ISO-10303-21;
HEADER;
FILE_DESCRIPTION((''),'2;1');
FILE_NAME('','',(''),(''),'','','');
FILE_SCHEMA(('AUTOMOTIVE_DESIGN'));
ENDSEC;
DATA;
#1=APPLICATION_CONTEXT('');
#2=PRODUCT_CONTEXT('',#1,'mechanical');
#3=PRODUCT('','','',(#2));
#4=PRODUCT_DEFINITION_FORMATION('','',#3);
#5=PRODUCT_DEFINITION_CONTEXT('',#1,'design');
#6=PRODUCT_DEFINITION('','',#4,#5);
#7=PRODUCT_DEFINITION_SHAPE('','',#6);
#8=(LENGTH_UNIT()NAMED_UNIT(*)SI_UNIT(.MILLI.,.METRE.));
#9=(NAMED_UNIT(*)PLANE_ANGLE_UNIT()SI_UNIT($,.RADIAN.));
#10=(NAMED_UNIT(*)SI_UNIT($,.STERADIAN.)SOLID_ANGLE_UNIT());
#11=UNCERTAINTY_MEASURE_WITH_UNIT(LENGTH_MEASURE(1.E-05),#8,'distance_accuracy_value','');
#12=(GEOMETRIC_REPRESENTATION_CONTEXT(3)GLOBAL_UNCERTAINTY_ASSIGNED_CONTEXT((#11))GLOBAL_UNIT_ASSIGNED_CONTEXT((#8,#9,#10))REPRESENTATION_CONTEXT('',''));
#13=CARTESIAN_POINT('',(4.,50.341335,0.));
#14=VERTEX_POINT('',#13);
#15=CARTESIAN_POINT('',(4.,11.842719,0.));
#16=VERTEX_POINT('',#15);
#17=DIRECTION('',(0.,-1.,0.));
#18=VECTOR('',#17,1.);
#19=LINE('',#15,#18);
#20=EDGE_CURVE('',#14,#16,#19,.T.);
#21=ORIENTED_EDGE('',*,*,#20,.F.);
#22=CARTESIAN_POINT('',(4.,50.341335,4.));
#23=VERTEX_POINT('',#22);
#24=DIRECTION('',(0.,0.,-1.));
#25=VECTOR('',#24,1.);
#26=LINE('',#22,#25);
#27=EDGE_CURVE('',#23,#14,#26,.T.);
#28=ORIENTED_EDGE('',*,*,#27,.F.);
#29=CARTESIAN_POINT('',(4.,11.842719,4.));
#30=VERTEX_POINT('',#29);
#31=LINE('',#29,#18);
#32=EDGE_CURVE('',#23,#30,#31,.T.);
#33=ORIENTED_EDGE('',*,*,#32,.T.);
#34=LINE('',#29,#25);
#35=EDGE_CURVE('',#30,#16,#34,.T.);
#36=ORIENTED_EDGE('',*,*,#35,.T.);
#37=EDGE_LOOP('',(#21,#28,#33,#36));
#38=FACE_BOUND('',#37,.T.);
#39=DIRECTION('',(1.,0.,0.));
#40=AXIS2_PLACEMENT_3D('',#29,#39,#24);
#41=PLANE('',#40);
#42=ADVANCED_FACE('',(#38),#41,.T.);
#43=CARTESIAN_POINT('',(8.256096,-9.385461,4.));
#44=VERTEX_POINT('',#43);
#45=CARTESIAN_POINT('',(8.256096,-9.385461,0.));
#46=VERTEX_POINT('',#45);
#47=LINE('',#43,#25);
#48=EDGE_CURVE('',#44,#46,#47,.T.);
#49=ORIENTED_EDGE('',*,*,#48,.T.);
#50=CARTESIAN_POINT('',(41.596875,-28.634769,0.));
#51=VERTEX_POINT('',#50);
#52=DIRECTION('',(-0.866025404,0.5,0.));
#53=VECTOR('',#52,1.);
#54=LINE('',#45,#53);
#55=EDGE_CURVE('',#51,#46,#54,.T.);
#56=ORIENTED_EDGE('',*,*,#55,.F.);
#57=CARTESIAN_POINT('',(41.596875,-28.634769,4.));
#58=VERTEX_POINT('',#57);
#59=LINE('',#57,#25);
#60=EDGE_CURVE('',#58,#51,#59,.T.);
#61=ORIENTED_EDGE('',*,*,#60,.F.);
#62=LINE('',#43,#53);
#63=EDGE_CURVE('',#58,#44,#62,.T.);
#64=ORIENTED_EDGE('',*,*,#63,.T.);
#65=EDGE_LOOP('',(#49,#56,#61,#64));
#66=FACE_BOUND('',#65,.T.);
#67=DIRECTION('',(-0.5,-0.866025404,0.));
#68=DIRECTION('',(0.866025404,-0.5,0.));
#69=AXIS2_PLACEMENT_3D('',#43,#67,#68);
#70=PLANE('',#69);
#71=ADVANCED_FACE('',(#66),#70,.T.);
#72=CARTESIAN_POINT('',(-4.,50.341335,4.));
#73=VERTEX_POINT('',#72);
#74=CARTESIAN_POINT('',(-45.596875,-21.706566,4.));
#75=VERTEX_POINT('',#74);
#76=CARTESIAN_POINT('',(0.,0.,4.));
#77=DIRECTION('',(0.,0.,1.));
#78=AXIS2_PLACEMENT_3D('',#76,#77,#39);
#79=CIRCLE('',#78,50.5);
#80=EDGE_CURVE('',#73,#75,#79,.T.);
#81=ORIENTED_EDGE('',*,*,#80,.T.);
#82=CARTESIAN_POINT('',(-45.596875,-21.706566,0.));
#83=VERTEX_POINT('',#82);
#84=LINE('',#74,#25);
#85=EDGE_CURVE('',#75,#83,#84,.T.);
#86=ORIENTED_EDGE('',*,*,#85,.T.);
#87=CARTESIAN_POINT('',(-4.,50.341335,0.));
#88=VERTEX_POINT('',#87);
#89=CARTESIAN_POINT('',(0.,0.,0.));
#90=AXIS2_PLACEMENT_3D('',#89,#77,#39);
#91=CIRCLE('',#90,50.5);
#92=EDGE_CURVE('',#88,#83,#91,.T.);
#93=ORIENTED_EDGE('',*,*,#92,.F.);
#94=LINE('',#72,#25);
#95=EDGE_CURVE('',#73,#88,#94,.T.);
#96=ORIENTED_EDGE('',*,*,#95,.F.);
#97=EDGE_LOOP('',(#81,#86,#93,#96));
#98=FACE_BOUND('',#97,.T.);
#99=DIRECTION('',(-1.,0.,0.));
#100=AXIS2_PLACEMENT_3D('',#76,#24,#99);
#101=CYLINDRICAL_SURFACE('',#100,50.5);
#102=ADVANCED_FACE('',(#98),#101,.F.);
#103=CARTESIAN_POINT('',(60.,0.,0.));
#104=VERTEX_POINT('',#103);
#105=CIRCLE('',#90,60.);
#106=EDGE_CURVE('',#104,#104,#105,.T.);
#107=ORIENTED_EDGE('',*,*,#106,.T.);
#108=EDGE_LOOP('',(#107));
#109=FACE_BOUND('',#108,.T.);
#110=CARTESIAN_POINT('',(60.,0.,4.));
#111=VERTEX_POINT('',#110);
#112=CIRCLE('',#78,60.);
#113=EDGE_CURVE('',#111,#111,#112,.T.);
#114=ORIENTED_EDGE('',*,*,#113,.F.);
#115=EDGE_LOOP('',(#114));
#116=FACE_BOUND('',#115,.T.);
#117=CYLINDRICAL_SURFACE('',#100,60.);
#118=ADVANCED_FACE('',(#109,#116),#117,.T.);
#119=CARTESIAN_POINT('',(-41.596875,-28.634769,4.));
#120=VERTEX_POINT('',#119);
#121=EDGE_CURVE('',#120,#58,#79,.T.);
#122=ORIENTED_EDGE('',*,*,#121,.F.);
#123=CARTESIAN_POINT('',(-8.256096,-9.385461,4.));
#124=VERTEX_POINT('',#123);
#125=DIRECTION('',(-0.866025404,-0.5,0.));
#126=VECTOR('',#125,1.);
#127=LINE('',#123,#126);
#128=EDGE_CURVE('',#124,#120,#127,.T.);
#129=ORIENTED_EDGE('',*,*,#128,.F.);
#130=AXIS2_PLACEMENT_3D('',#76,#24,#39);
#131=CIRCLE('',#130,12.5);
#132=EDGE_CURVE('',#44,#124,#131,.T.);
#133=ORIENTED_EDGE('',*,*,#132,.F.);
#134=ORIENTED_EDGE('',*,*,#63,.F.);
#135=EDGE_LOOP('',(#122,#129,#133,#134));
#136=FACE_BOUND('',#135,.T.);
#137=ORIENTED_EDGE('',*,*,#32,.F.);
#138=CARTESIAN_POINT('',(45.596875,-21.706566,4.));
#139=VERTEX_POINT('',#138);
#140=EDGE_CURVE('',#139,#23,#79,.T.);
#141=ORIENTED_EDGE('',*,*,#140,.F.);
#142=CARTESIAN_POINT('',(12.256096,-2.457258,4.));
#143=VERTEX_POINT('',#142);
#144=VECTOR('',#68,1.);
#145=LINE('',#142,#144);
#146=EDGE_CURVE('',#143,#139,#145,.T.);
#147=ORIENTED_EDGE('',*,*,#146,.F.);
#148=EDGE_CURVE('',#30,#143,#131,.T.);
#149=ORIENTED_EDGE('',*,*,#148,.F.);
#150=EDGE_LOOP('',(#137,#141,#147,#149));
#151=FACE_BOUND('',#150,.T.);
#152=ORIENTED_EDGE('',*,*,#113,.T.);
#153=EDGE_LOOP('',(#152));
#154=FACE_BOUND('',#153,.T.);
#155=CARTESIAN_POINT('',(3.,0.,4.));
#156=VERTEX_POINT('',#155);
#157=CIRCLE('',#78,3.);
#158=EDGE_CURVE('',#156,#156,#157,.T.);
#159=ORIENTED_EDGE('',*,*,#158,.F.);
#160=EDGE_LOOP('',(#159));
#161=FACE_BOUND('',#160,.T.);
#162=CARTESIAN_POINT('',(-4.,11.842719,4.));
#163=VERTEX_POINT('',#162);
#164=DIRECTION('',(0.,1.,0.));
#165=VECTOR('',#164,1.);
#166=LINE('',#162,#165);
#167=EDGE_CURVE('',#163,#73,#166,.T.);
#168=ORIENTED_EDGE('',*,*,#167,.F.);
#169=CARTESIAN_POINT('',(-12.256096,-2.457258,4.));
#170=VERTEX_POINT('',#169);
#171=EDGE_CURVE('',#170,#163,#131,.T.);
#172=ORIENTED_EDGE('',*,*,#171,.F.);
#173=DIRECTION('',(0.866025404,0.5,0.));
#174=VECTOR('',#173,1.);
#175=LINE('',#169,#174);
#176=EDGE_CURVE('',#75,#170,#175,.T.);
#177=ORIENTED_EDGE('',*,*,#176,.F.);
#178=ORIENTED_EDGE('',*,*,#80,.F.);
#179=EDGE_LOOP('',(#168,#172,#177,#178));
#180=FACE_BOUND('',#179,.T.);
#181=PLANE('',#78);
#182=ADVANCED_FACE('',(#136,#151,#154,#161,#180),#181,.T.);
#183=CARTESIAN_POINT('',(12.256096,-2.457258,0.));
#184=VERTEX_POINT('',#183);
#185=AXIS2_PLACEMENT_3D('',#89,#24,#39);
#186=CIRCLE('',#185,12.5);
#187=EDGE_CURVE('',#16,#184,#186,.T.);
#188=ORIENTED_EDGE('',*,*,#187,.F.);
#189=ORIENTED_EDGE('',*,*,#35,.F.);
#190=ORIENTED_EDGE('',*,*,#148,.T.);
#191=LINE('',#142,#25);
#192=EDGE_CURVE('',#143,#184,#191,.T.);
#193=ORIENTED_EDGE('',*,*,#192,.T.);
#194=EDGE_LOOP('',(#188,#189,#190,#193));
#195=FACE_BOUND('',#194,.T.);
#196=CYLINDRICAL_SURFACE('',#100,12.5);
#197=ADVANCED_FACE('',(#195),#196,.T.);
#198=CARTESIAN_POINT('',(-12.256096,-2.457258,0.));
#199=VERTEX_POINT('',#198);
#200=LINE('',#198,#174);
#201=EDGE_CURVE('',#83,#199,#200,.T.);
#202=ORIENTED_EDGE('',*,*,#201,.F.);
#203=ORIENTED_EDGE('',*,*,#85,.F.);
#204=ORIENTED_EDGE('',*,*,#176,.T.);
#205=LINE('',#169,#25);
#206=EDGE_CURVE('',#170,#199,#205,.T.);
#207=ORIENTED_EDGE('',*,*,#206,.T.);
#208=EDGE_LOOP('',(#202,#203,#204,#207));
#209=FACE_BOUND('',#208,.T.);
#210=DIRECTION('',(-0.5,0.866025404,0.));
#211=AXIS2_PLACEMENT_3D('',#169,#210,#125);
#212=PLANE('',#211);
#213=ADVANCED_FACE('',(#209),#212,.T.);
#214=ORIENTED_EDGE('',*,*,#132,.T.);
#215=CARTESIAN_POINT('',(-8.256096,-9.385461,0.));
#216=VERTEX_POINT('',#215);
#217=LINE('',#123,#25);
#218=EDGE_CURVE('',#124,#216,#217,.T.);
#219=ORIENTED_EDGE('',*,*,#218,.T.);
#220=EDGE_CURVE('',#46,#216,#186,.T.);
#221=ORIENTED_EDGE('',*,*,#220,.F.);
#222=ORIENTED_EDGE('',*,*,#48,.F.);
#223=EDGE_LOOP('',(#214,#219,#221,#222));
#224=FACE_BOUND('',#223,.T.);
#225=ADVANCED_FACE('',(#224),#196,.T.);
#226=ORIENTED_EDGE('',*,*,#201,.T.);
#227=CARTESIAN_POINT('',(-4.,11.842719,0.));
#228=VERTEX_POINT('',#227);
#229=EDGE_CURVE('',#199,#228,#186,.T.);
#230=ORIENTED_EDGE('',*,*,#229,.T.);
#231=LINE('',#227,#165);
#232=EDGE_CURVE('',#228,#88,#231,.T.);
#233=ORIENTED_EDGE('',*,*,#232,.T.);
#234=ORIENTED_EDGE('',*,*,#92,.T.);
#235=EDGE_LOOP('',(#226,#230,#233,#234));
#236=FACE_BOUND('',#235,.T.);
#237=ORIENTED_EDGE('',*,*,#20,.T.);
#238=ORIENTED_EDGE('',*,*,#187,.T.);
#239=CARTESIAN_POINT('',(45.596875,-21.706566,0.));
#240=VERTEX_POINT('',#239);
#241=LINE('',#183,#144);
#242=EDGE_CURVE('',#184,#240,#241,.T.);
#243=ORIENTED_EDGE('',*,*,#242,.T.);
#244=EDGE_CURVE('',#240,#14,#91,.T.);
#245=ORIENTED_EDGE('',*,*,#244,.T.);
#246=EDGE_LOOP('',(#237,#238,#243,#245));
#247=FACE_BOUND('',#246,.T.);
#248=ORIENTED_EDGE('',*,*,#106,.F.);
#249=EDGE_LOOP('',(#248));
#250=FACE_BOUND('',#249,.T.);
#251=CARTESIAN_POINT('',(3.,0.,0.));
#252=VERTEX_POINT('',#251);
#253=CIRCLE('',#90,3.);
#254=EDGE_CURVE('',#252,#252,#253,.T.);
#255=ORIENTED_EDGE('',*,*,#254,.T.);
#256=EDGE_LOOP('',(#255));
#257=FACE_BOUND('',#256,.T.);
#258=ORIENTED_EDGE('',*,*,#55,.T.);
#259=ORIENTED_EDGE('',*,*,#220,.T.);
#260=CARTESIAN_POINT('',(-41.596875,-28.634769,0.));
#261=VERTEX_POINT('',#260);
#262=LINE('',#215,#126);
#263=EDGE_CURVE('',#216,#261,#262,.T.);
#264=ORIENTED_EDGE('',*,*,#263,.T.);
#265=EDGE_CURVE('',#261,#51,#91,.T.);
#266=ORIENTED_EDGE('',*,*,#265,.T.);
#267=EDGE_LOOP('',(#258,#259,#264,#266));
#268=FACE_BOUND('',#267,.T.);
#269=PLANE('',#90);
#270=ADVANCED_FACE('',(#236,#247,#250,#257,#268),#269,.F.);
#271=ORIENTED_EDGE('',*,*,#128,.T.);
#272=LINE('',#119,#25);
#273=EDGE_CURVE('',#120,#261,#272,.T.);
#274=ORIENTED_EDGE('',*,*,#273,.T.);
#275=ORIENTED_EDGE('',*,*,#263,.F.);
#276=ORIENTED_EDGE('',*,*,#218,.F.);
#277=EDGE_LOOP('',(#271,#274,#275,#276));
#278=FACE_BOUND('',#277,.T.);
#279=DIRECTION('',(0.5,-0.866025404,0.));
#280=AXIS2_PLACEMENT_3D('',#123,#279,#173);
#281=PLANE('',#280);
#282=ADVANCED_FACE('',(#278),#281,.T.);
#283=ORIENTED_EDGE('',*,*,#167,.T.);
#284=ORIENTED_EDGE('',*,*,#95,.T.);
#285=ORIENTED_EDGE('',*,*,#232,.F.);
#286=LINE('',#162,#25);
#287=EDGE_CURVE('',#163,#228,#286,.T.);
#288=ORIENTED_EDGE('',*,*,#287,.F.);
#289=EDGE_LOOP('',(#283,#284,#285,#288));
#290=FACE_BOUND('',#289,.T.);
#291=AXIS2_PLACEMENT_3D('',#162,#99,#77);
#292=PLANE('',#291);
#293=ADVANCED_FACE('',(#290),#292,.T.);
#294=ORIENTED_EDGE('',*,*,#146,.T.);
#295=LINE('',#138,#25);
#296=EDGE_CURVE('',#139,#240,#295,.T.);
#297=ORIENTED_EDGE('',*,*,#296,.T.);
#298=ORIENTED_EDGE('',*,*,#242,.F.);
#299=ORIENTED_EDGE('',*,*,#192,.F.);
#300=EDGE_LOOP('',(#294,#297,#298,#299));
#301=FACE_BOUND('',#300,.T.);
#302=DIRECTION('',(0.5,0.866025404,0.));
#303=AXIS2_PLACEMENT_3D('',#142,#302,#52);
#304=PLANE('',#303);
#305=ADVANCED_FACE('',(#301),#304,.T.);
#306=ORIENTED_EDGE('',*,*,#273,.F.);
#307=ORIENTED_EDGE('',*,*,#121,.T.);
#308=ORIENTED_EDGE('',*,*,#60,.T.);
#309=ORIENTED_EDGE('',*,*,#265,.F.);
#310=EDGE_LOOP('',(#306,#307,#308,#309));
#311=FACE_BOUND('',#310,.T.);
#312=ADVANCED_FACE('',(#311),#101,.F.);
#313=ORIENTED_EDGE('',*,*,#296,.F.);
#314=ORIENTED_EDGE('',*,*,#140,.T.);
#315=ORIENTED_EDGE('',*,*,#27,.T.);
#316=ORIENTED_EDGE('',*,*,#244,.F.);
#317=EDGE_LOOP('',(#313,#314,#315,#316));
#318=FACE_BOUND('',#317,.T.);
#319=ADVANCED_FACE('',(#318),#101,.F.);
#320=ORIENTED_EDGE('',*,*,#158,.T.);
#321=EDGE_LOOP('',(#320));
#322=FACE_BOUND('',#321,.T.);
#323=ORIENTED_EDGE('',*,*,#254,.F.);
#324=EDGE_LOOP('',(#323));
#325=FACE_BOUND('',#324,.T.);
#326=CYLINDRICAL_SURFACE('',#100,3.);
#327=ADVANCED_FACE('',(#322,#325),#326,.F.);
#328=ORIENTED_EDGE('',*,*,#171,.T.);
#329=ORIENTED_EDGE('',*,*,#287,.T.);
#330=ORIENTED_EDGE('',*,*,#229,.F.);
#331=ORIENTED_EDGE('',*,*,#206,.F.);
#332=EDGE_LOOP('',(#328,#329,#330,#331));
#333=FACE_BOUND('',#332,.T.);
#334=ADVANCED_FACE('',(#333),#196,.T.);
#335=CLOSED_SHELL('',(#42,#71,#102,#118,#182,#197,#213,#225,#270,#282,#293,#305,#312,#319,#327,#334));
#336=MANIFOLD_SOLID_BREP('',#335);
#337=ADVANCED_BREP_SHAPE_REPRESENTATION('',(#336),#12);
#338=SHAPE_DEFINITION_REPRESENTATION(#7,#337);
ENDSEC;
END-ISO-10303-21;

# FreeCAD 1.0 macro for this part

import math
import FreeCAD as App
import Part
import Sketcher

V = App.Vector
Q = App.Units.Quantity

doc = App.newDocument("Part")
body = doc.addObject("PartDesign::Body", "Body")

sketch1 = body.newObject("Sketcher::SketchObject", "Sketch")
sketch1.AttachmentSupport = (doc.getObject("XY_Plane"), [""])
sketch1.MapMode = "FlatFace"
sketch1.addGeometry(Part.Circle(V(0, 0, 0), V(0, 0, 1), 60), False)
sketch1.addGeometry(Part.ArcOfCircle(Part.Circle(V(0, 0, 0), V(0, 0, 1), 12.5), math.radians(-131.337075), math.radians(-48.662925)), False)
sketch1.addGeometry(Part.LineSegment(V(8.256096, -9.385461, 0), V(41.596875, -28.634769, 0)), False)
sketch1.addGeometry(Part.ArcOfCircle(Part.Circle(V(0, 0, 0), V(0, 0, 1), 50.5), math.radians(-145.456962), math.radians(-34.543038)), False)
sketch1.addGeometry(Part.LineSegment(V(-41.596875, -28.634769, 0), V(-8.256096, -9.385461, 0)), False)
sketch1.addGeometry(Part.LineSegment(V(-4, 50.341335, 0), V(-4, 11.842719, 0)), False)
sketch1.addGeometry(Part.ArcOfCircle(Part.Circle(V(0, 0, 0), V(0, 0, 1), 12.5), math.radians(108.662925), math.radians(191.337075)), False)
sketch1.addGeometry(Part.LineSegment(V(-12.256096, -2.457258, 0), V(-45.596875, -21.706566, 0)), False)
sketch1.addGeometry(Part.ArcOfCircle(Part.Circle(V(0, 0, 0), V(0, 0, 1), 50.5), math.radians(94.543038), math.radians(205.456962)), False)
sketch1.addGeometry(Part.Circle(V(0, 0, 0), V(0, 0, 1), 3), False)
sketch1.addGeometry(Part.ArcOfCircle(Part.Circle(V(0, 0, 0), V(0, 0, 1), 12.5), math.radians(-11.337075), math.radians(71.337075)), False)
sketch1.addGeometry(Part.LineSegment(V(4, 11.842719, 0), V(4, 50.341335, 0)), False)
sketch1.addGeometry(Part.ArcOfCircle(Part.Circle(V(0, 0, 0), V(0, 0, 1), 50.5), math.radians(-25.456962), math.radians(85.456962)), False)
sketch1.addGeometry(Part.LineSegment(V(45.596875, -21.706566, 0), V(12.256096, -2.457258, 0)), False)
sketch1.addConstraint(Sketcher.Constraint("Coincident", 1, 2, 2, 1))
sketch1.addConstraint(Sketcher.Constraint("Coincident", 2, 2, 3, 2))
sketch1.addConstraint(Sketcher.Constraint("Coincident", 3, 1, 4, 1))
sketch1.addConstraint(Sketcher.Constraint("Coincident", 4, 2, 1, 1))
sketch1.addConstraint(Sketcher.Constraint("Coincident", 5, 2, 6, 1))
sketch1.addConstraint(Sketcher.Constraint("Coincident", 6, 2, 7, 1))
sketch1.addConstraint(Sketcher.Constraint("Coincident", 7, 2, 8, 2))
sketch1.addConstraint(Sketcher.Constraint("Coincident", 8, 1, 5, 1))
sketch1.addConstraint(Sketcher.Constraint("Coincident", 10, 2, 11, 1))
sketch1.addConstraint(Sketcher.Constraint("Coincident", 11, 2, 12, 2))
sketch1.addConstraint(Sketcher.Constraint("Coincident", 12, 1, 13, 1))
sketch1.addConstraint(Sketcher.Constraint("Coincident", 13, 2, 10, 1))
sketch1.addConstraint(Sketcher.Constraint("Vertical", 5))
sketch1.addConstraint(Sketcher.Constraint("Vertical", 11))
sketch1.addConstraint(Sketcher.Constraint("Coincident", 0, 3, -1, 1))
sketch1.addConstraint(Sketcher.Constraint("Coincident", 1, 3, -1, 1))
sketch1.addConstraint(Sketcher.Constraint("Coincident", 3, 3, -1, 1))
sketch1.addConstraint(Sketcher.Constraint("Coincident", 6, 3, -1, 1))
sketch1.addConstraint(Sketcher.Constraint("Coincident", 8, 3, -1, 1))
sketch1.addConstraint(Sketcher.Constraint("Coincident", 9, 3, -1, 1))
sketch1.addConstraint(Sketcher.Constraint("Coincident", 10, 3, -1, 1))
sketch1.addConstraint(Sketcher.Constraint("Coincident", 12, 3, -1, 1))
sketch1.addConstraint(Sketcher.Constraint("Equal", 1, 6))
sketch1.addConstraint(Sketcher.Constraint("Equal", 3, 8))
sketch1.addConstraint(Sketcher.Constraint("Equal", 6, 10))
sketch1.addConstraint(Sketcher.Constraint("Equal", 8, 12))
sketch1.addConstraint(Sketcher.Constraint("Parallel", 4, 7))
sketch1.addConstraint(Sketcher.Constraint("Parallel", 2, 13))
sketch1.addConstraint(Sketcher.Constraint("Horizontal", 2, 2, 3, 1))
sketch1.addConstraint(Sketcher.Constraint("Horizontal", 1, 2, 4, 2))
sketch1.addConstraint(Sketcher.Constraint("Horizontal", 5, 2, 10, 2))
sketch1.addConstraint(Sketcher.Constraint("Horizontal", 7, 2, 12, 1))
sketch1.addConstraint(Sketcher.Constraint("Equal", 4, 7))
sketch1.addConstraint(Sketcher.Constraint("Diameter", 0, Q("120 mm")))
sketch1.addConstraint(Sketcher.Constraint("Diameter", 9, Q("6 mm")))
sketch1.addConstraint(Sketcher.Constraint("Radius", 1, Q("12.5 mm")))
sketch1.addConstraint(Sketcher.Constraint("Radius", 3, Q("50.5 mm")))
sketch1.addConstraint(Sketcher.Constraint("Angle", 2, Q("-30 deg")))
sketch1.addConstraint(Sketcher.Constraint("DistanceX", 5, 2, -1, 1, Q("4 mm")))
sketch1.addConstraint(Sketcher.Constraint("DistanceX", 6, 2, 4, 2, Q("4 mm")))
pad1 = body.newObject("PartDesign::Pad", "Pad")
pad1.Profile = sketch1
pad1.Length = 4

doc.recompute()
